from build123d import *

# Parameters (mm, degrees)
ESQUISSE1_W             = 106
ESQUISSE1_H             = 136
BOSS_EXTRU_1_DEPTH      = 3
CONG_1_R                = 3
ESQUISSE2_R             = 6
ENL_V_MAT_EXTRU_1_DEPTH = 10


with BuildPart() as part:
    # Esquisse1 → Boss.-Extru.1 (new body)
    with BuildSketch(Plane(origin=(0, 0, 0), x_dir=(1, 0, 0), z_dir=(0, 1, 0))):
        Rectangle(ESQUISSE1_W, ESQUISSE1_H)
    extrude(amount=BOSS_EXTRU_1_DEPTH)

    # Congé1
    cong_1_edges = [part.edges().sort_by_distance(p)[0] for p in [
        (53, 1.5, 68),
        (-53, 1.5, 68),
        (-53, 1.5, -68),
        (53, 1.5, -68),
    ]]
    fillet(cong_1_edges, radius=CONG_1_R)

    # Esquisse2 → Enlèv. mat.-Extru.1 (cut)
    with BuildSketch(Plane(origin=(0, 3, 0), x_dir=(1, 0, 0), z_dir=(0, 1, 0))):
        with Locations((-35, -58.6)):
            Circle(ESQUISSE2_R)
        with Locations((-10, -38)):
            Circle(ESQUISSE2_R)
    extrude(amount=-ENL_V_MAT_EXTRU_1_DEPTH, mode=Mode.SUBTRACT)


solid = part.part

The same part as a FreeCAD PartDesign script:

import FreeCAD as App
import Part
import Sketcher
from FreeCAD import Vector
Q = App.Units.Quantity


def edges_at(feature, points):
    """Names of the edges that pass closest to the given points."""
    edges = feature.Shape.Edges
    near = lambda p: min(range(len(edges)), key=lambda i: edges[i].distToShape(Part.Vertex(*p))[0])
    return sorted({f"Edge{near(p) + 1}" for p in points})

doc = App.newDocument("Part")
body = doc.addObject("PartDesign::Body", "Body")

sketch1 = doc.addObject("Sketcher::SketchObject", "Sketch")
body.addObject(sketch1)
sketch1.AttachmentSupport = (doc.XZ_Plane, [""])
sketch1.MapMode = "FlatFace"
sketch1.addGeometry(Part.LineSegment(Vector(-53, -68, 0), Vector(-53, 68, 0)), False)
sketch1.addGeometry(Part.LineSegment(Vector(-53, 68, 0), Vector(53, 68, 0)), False)
sketch1.addGeometry(Part.LineSegment(Vector(53, 68, 0), Vector(53, -68, 0)), False)
sketch1.addGeometry(Part.LineSegment(Vector(53, -68, 0), Vector(-53, -68, 0)), False)
sketch1.addConstraint(Sketcher.Constraint("Coincident", 0, 2, 1, 1))
sketch1.addConstraint(Sketcher.Constraint("Coincident", 1, 2, 2, 1))
sketch1.addConstraint(Sketcher.Constraint("Coincident", 2, 2, 3, 1))
sketch1.addConstraint(Sketcher.Constraint("Coincident", 3, 2, 0, 1))
sketch1.addConstraint(Sketcher.Constraint("Vertical", 0))
sketch1.addConstraint(Sketcher.Constraint("Horizontal", 1))
sketch1.addConstraint(Sketcher.Constraint("Vertical", 2))
sketch1.addConstraint(Sketcher.Constraint("Horizontal", 3))
sketch1.addConstraint(Sketcher.Constraint("Symmetric", 0, 2, 2, 2, -1, 1))
sketch1.addConstraint(Sketcher.Constraint("DistanceX", 1, 1, 1, 2, Q("106 mm")))
sketch1.addConstraint(Sketcher.Constraint("DistanceY", 0, 1, 0, 2, Q("136 mm")))
pad1 = doc.addObject("PartDesign::Pad", "Pad")
body.addObject(pad1)
pad1.Profile = sketch1
pad1.Length = 3
pad1.Reversed = True
doc.recompute()

fillet = doc.addObject("PartDesign::Fillet", "Fillet")
body.addObject(fillet)
fillet.Base = (pad1, edges_at(pad1, [
    (53, 1.5, 68),
    (-53, 1.5, 68),
    (-53, 1.5, -68),
    (53, 1.5, -68),
]))
fillet.Radius = 3

sketch2 = doc.addObject("Sketcher::SketchObject", "Sketch001")
body.addObject(sketch2)
sketch2.AttachmentSupport = (doc.XZ_Plane, [""])
sketch2.MapMode = "FlatFace"
sketch2.AttachmentOffset = App.Placement(Vector(0, 0, -3), App.Rotation())
sketch2.addGeometry(Part.Circle(Vector(-35, 59, 0), Vector(0, 0, 1), 6), False)
sketch2.addGeometry(Part.Circle(Vector(-10, 38, 0), Vector(0, 0, 1), 6), False)
sketch2.addConstraint(Sketcher.Constraint("Equal", 0, 1))
sketch2.addConstraint(Sketcher.Constraint("Diameter", 0, Q("12 mm")))
sketch2.addConstraint(Sketcher.Constraint("DistanceX", 0, 3, -1, 1, Q("35 mm")))
sketch2.addConstraint(Sketcher.Constraint("DistanceX", 1, 3, -1, 1, Q("10 mm")))
sketch2.addConstraint(Sketcher.Constraint("DistanceY", -1, 1, 1, 3, Q("38 mm")))
sketch2.addConstraint(Sketcher.Constraint("DistanceY", -1, 1, 0, 3, Q("58.6 mm")))
pocket1 = doc.addObject("PartDesign::Pocket", "Pocket")
body.addObject(pocket1)
pocket1.Profile = sketch2
pocket1.Length = 10
pocket1.Reversed = True

doc.recompute()
